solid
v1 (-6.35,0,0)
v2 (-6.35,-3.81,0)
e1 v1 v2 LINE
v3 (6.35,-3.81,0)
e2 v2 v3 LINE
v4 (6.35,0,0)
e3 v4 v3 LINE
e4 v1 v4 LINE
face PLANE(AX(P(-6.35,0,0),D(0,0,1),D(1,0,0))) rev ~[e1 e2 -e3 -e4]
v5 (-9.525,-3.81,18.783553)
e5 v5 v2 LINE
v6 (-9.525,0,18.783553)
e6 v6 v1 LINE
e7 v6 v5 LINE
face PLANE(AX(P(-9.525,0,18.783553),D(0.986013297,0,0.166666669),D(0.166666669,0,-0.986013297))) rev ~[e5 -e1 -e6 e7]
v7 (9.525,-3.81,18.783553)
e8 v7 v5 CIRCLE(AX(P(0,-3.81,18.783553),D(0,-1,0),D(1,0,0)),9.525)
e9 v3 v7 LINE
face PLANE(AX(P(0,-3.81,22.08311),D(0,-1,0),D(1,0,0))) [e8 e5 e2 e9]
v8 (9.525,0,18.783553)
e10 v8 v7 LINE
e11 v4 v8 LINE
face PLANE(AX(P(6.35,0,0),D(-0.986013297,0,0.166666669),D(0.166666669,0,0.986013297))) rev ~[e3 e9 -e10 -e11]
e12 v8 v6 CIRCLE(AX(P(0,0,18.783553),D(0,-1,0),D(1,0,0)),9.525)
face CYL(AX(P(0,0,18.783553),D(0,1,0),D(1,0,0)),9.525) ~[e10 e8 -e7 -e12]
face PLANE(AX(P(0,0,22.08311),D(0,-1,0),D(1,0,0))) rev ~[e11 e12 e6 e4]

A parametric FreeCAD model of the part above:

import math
import FreeCAD as App
import Part
import Sketcher
Q = App.Units.Quantity


def add_polygon(sketch, points):
    """Adds a closed chain of lines whose ends are joined by coincident constraints."""
    first, n = sketch.GeometryCount, len(points)
    for a, b in zip(points, points[1:] + points[:1]):
        sketch.addGeometry(Part.LineSegment(App.Vector(*a, 0), App.Vector(*b, 0)), False)
    for i in range(n):
        sketch.addConstraint(Sketcher.Constraint("Coincident", first + i, 2, first + (i + 1) % n, 1))

doc = App.newDocument("Part")
body = doc.addObject("PartDesign::Body", "Body")

# Sketch on XZ plane
sketch1 = body.newObject("Sketcher::SketchObject", "Sketch")
sketch1.AttachmentSupport = (doc.getObject("XZ_Plane"), [""])
sketch1.MapMode = "FlatFace"
add_polygon(sketch1, [(-6, 0), (6, 0), (10, 19), (-10, 19)])  # lines 0-3
sketch1.addConstraint([
    Sketcher.Constraint("Horizontal", 0),
    Sketcher.Constraint("Horizontal", 2),
    Sketcher.Constraint("Symmetric", 0, 2, 3, 2, -1, 1),
    Sketcher.Constraint("Equal", 1, 3),
    Sketcher.Constraint("DistanceX", 0, 1, 0, 2, Q("0.5 in")),
    Sketcher.Constraint("DistanceX", 2, 2, 2, 1, Q("0.75 in")),
    Sketcher.Constraint("Distance", 1, Q("0.75 in")),
])
pad1 = body.newObject("PartDesign::Pad", "Pad")
pad1.Profile = sketch1
pad1.Length = Q("0.15 in")

# Sketch on XZ plane
sketch2 = body.newObject("Sketcher::SketchObject", "Sketch001")
sketch2.AttachmentSupport = (doc.getObject("XZ_Plane"), [""])
sketch2.MapMode = "FlatFace"
sketch2.addGeometry([
    Part.LineSegment(App.Vector(-10, 19, 0), App.Vector(10, 19, 0)),
    Part.ArcOfCircle(Part.Circle(App.Vector(0, 19, 0), App.Vector(0, 0, 1), 10), math.radians(0), math.radians(180)),
], False)
sketch2.addConstraint([
    Sketcher.Constraint("Coincident", 0, 1, 1, 2),
    Sketcher.Constraint("Coincident", 1, 1, 0, 2),
    Sketcher.Constraint("Horizontal", 0),
    Sketcher.Constraint("PointOnObject", 1, 3, -2),
    Sketcher.Constraint("Horizontal", 1, 3, 0, 1),
    Sketcher.Constraint("Radius", 1, Q("0.375 in")),
    Sketcher.Constraint("DistanceY", -1, 1, 1, 3, Q("18.783553 mm")),
])
pad2 = body.newObject("PartDesign::Pad", "Pad001")
pad2.Profile = sketch2
pad2.Length = Q("0.15 in")

doc.recompute()
